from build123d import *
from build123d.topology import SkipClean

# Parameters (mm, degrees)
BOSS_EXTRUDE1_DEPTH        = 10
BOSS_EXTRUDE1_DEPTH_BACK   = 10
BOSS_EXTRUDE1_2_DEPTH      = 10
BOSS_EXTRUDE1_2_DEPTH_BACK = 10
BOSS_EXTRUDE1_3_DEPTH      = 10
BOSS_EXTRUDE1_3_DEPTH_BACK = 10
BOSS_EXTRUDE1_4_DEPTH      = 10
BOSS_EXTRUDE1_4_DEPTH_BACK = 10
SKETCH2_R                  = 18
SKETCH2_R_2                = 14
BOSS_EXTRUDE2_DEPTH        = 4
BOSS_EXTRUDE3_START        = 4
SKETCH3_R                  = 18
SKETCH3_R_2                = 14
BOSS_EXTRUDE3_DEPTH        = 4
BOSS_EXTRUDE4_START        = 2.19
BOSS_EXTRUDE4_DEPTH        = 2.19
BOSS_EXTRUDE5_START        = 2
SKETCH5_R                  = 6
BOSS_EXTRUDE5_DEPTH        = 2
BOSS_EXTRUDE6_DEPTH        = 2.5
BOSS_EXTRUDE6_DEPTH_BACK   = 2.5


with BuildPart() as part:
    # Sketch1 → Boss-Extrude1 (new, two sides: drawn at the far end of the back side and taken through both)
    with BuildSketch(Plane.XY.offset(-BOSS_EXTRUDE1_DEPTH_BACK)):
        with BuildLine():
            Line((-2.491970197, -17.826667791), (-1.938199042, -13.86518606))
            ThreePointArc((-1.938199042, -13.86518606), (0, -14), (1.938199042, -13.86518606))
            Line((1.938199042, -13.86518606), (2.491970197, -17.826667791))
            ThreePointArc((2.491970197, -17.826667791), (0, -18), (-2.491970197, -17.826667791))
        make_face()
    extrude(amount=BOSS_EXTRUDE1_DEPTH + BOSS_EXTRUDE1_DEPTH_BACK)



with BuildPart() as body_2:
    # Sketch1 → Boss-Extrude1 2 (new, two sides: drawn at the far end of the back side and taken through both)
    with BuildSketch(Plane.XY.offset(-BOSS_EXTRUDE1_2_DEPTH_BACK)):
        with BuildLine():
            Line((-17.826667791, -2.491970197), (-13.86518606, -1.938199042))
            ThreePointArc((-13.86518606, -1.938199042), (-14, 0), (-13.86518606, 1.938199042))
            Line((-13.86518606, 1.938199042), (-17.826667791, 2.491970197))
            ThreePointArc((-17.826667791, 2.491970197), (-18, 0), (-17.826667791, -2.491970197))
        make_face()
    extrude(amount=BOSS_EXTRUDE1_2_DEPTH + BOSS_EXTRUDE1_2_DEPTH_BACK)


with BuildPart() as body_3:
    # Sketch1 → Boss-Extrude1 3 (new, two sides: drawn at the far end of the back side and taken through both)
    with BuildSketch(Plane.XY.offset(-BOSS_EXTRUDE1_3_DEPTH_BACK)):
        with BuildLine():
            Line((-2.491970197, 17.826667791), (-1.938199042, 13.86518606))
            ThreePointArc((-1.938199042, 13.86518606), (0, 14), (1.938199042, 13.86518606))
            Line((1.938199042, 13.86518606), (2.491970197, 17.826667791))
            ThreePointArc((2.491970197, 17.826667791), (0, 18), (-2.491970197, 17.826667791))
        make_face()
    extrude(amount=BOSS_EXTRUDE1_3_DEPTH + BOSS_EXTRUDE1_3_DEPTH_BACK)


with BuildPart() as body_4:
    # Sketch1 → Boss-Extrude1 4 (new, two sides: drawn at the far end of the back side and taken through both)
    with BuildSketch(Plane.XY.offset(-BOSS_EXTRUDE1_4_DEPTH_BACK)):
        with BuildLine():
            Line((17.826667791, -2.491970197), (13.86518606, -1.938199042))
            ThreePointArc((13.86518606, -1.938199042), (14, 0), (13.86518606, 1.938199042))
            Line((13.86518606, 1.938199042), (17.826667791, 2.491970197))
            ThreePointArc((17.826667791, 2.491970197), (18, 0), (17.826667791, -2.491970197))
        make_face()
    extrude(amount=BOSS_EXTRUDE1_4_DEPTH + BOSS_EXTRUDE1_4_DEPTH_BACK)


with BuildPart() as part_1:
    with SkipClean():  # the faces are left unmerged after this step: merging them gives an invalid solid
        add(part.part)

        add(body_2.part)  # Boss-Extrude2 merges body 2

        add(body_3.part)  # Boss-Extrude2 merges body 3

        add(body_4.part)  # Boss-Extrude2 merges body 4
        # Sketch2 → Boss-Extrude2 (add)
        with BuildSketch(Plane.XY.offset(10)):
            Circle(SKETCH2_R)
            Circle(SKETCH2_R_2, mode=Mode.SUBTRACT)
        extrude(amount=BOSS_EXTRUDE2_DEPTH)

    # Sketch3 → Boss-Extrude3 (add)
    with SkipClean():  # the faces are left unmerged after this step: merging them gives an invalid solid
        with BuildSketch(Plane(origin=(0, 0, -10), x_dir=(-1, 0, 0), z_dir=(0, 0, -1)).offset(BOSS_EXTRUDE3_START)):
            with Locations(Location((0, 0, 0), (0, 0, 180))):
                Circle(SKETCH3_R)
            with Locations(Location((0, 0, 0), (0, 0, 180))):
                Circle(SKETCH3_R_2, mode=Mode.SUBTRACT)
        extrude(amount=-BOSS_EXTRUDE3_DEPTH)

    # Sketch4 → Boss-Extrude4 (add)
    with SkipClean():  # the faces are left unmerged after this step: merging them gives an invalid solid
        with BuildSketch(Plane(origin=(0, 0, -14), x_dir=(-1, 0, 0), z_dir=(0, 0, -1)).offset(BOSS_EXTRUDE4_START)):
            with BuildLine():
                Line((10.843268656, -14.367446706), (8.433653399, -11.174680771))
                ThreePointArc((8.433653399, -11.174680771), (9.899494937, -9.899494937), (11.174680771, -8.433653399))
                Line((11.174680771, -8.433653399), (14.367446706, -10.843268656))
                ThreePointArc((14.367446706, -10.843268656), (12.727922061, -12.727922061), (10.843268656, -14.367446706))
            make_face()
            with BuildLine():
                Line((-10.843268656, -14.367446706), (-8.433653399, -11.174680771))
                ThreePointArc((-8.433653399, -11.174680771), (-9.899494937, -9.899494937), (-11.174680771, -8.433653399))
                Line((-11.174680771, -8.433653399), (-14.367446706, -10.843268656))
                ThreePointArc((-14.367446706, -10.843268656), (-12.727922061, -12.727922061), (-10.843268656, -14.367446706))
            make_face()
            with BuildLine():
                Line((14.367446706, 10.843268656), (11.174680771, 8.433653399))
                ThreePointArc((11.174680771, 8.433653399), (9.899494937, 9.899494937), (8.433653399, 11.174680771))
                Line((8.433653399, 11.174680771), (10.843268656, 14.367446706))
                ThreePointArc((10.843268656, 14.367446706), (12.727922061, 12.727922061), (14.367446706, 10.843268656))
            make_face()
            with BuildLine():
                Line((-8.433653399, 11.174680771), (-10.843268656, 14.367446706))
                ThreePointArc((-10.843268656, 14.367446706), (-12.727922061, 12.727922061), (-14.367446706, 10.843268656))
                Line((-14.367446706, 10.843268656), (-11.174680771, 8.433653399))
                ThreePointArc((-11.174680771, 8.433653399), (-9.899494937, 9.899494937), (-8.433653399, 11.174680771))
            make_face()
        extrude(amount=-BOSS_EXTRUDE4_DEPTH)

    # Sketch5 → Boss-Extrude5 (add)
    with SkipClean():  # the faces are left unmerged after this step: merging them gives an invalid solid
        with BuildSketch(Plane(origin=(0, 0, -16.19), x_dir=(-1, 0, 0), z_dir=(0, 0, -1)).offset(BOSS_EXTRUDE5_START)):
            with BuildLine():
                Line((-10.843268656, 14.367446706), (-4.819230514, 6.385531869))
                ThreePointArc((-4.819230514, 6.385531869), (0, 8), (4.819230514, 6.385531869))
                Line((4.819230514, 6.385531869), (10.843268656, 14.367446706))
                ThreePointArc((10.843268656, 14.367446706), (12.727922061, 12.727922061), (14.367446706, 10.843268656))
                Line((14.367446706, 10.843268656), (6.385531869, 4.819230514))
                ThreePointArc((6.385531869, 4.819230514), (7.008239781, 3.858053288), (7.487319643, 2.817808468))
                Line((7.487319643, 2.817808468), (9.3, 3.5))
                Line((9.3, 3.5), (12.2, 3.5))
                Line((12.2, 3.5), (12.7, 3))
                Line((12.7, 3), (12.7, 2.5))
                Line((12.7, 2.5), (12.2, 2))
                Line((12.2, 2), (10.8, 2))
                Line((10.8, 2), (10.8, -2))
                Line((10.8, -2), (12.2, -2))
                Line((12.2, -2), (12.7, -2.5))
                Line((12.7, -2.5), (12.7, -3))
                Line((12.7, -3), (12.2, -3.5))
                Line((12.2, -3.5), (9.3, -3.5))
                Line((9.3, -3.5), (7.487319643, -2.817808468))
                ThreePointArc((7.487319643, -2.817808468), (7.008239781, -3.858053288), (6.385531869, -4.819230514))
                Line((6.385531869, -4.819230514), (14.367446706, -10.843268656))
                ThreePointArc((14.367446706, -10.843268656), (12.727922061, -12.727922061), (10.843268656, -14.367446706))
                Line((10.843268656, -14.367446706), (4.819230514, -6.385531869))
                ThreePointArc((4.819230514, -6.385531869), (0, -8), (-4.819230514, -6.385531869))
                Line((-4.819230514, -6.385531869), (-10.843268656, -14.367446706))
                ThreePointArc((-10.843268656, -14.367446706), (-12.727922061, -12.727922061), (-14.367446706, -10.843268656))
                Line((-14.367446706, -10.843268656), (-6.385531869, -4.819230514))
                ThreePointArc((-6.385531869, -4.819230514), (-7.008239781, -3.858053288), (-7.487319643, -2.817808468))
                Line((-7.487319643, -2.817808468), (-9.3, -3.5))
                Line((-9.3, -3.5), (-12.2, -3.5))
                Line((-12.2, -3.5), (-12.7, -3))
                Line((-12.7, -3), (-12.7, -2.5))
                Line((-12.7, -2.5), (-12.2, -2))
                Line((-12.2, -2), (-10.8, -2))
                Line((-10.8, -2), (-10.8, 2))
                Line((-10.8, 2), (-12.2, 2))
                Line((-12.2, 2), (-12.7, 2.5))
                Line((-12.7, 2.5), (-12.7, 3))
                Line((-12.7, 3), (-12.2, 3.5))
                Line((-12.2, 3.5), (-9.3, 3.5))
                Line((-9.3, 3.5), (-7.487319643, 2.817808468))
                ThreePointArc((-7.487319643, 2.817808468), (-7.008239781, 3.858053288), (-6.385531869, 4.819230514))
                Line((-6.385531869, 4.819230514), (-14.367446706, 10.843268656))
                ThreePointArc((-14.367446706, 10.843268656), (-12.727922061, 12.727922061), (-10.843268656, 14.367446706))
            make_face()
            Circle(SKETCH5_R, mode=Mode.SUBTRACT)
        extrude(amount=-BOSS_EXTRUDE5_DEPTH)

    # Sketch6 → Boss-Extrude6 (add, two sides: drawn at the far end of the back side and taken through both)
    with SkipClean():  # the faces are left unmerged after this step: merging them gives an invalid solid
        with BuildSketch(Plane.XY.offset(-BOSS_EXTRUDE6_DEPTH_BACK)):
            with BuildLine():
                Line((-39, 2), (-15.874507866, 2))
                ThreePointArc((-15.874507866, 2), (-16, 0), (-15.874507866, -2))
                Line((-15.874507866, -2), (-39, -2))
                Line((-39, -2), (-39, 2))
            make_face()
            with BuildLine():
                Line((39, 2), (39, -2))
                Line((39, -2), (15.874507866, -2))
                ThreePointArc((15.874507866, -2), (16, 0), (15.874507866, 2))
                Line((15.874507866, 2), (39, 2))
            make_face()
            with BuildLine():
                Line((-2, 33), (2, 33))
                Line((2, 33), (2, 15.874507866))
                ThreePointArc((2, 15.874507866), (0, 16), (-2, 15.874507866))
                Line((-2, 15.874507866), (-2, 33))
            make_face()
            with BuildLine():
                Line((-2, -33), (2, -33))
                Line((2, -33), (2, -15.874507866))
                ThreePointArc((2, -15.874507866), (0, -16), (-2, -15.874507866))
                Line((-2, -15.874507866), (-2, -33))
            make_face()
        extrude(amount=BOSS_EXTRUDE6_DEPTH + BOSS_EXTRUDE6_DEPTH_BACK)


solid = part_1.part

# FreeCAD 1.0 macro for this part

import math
import FreeCAD as App
import Part
import Sketcher
from FreeCAD import Vector
Q = App.Units.Quantity

doc = App.newDocument("Part")
params = doc.addObject("Spreadsheet::Sheet", "Params")
for row, (alias, value) in enumerate([
    ("sketch1_radius", "18 mm"),
    ("sketch1_radius2", "14 mm"),
    ("pad1_length", "10 mm"),
    ("pad1_length2", "10 mm"),
    ("sketch2_radius", "14 mm"),
    ("sketch2_radius2", "18 mm"),
    ("pad2_length", "10 mm"),
    ("pad2_length2", "10 mm"),
    ("sketch3_radius", "14 mm"),
    ("sketch3_radius2", "18 mm"),
    ("pad3_length", "10 mm"),
    ("pad3_length2", "10 mm"),
    ("sketch4_radius", "18 mm"),
    ("sketch4_radius2", "14 mm"),
    ("pad4_length", "10 mm"),
    ("pad4_length2", "10 mm"),
    ("sketch5_diameter", "36 mm"),
    ("sketch5_diameter2", "28 mm"),
    ("pad5_length", "4 mm"),
    ("sketch6_diameter", "36 mm"),
    ("sketch6_diameter2", "28 mm"),
    ("pad6_length", "4 mm"),
    ("sketch7_radius", "18 mm"),
    ("sketch7_radius2", "14 mm"),
    ("pad7_length", "2.19 mm"),
    ("sketch8_diameter", "12 mm"),
    ("sketch8_radius", "18 mm"),
    ("sketch8_radius2", "8 mm"),
    ("sketch8_height", "4 mm"),
    ("sketch8_width", "2.9 mm"),
    ("pad8_length", "2 mm"),
    ("sketch9_radius", "16 mm"),
    ("sketch9_width", "4 mm"),
    ("pad9_length", "2.5 mm"),
    ("pad9_length2", "2.5 mm"),
], start=1):
    params.set(f"A{row}", alias)
    params.set(f"B{row}", "=" + value)
    params.setAlias(f"B{row}", alias)

body = doc.addObject("PartDesign::Body", "Body")

# Sketch on XY plane
sketch1 = body.newObject("Sketcher::SketchObject", "Sketch")
sketch1.AttachmentSupport = (doc.getObject("XY_Plane"), [""])
sketch1.MapMode = "FlatFace"
sketch1.addGeometry(Part.LineSegment(Vector(-1.9, -13.9, 0), Vector(-2.5, -17.8, 0)), False)
sketch1.addGeometry(Part.ArcOfCircle(Part.Circle(Vector(0, 0, 0), Vector(0, 0, 1), 18), math.radians(-97.96), math.radians(-82.04)), False)
sketch1.addGeometry(Part.LineSegment(Vector(2.5, -17.8, 0), Vector(1.9, -13.9, 0)), False)
sketch1.addGeometry(Part.ArcOfCircle(Part.Circle(Vector(0, 0, 0), Vector(0, 0, 1), 14), math.radians(-97.96), math.radians(-82.04)), False)
sketch1.addConstraint(Sketcher.Constraint("Coincident", 0, 2, 1, 1))
sketch1.addConstraint(Sketcher.Constraint("Coincident", 1, 2, 2, 1))
sketch1.addConstraint(Sketcher.Constraint("Coincident", 2, 2, 3, 2))
sketch1.addConstraint(Sketcher.Constraint("Coincident", 3, 1, 0, 1))
sketch1.addConstraint(Sketcher.Constraint("Coincident", 1, 3, -1, 1))
sketch1.addConstraint(Sketcher.Constraint("Coincident", 3, 3, -1, 1))
sketch1.addConstraint(Sketcher.Constraint("Horizontal", 0, 2, 1, 2))
sketch1.addConstraint(Sketcher.Constraint("Horizontal", 2, 2, 3, 1))
sketch1.addConstraint(Sketcher.Constraint("Radius", 1, Q("18 mm")))
sketch1.addConstraint(Sketcher.Constraint("Radius", 3, Q("14 mm")))
sketch1.addConstraint(Sketcher.Constraint("DistanceX", -1, 1, 2, 2, Q("1.938199 mm")))
sketch1.addConstraint(Sketcher.Constraint("DistanceX", 0, 2, -1, 1, Q("2.49197 mm")))
sketch1.setExpression("Constraints[8]", "Params.sketch1_radius")
sketch1.setExpression("Constraints[9]", "Params.sketch1_radius2")
pad1 = body.newObject("PartDesign::Pad", "Pad")
pad1.Profile = sketch1
pad1.Type = "TwoLengths"
pad1.setExpression("Length", "Params.pad1_length")
pad1.setExpression("Length2", "Params.pad1_length2")
body2 = doc.addObject("PartDesign::Body", "Body001")

# Sketch on XY plane
sketch2 = body2.newObject("Sketcher::SketchObject", "Sketch001")
sketch2.AttachmentSupport = (doc.getObject("XY_Plane001"), [""])
sketch2.MapMode = "FlatFace"
sketch2.addGeometry(Part.LineSegment(Vector(-17.8, -2.5, 0), Vector(-13.9, -1.9, 0)), False)
sketch2.addGeometry(Part.ArcOfCircle(Part.Circle(Vector(0, 0, 0), Vector(0, 0, 1), 14), math.radians(172.04), math.radians(187.96)), False)
sketch2.addGeometry(Part.LineSegment(Vector(-13.9, 1.9, 0), Vector(-17.8, 2.5, 0)), False)
sketch2.addGeometry(Part.ArcOfCircle(Part.Circle(Vector(0, 0, 0), Vector(0, 0, 1), 18), math.radians(172.04), math.radians(187.96)), False)
sketch2.addConstraint(Sketcher.Constraint("Coincident", 0, 2, 1, 2))
sketch2.addConstraint(Sketcher.Constraint("Coincident", 1, 1, 2, 1))
sketch2.addConstraint(Sketcher.Constraint("Coincident", 2, 2, 3, 1))
sketch2.addConstraint(Sketcher.Constraint("Coincident", 3, 2, 0, 1))
sketch2.addConstraint(Sketcher.Constraint("Coincident", 1, 3, -1, 1))
sketch2.addConstraint(Sketcher.Constraint("Coincident", 3, 3, -1, 1))
sketch2.addConstraint(Sketcher.Constraint("Vertical", 0, 2, 1, 1))
sketch2.addConstraint(Sketcher.Constraint("Vertical", 2, 2, 3, 2))
sketch2.addConstraint(Sketcher.Constraint("Radius", 1, Q("14 mm")))
sketch2.addConstraint(Sketcher.Constraint("Radius", 3, Q("18 mm")))
sketch2.addConstraint(Sketcher.Constraint("DistanceY", 0, 2, -1, 1, Q("1.938199 mm")))
sketch2.addConstraint(Sketcher.Constraint("DistanceY", -1, 1, 2, 2, Q("2.49197 mm")))
sketch2.setExpression("Constraints[8]", "Params.sketch2_radius")
sketch2.setExpression("Constraints[9]", "Params.sketch2_radius2")
pad2 = body2.newObject("PartDesign::Pad", "Pad001")
pad2.Profile = sketch2
pad2.Type = "TwoLengths"
pad2.setExpression("Length", "Params.pad2_length")
pad2.setExpression("Length2", "Params.pad2_length2")
body3 = doc.addObject("PartDesign::Body", "Body002")

# Sketch on XY plane
sketch3 = body3.newObject("Sketcher::SketchObject", "Sketch002")
sketch3.AttachmentSupport = (doc.getObject("XY_Plane002"), [""])
sketch3.MapMode = "FlatFace"
sketch3.addGeometry(Part.LineSegment(Vector(-2.5, 17.8, 0), Vector(-1.9, 13.9, 0)), False)
sketch3.addGeometry(Part.ArcOfCircle(Part.Circle(Vector(0, 0, 0), Vector(0, 0, 1), 14), math.radians(82.04), math.radians(97.96)), False)
sketch3.addGeometry(Part.LineSegment(Vector(1.9, 13.9, 0), Vector(2.5, 17.8, 0)), False)
sketch3.addGeometry(Part.ArcOfCircle(Part.Circle(Vector(0, 0, 0), Vector(0, 0, 1), 18), math.radians(82.04), math.radians(97.96)), False)
sketch3.addConstraint(Sketcher.Constraint("Coincident", 0, 2, 1, 2))
sketch3.addConstraint(Sketcher.Constraint("Coincident", 1, 1, 2, 1))
sketch3.addConstraint(Sketcher.Constraint("Coincident", 2, 2, 3, 1))
sketch3.addConstraint(Sketcher.Constraint("Coincident", 3, 2, 0, 1))
sketch3.addConstraint(Sketcher.Constraint("Coincident", 1, 3, -1, 1))
sketch3.addConstraint(Sketcher.Constraint("Coincident", 3, 3, -1, 1))
sketch3.addConstraint(Sketcher.Constraint("Horizontal", 0, 2, 1, 1))
sketch3.addConstraint(Sketcher.Constraint("Horizontal", 2, 2, 3, 2))
sketch3.addConstraint(Sketcher.Constraint("Radius", 1, Q("14 mm")))
sketch3.addConstraint(Sketcher.Constraint("Radius", 3, Q("18 mm")))
sketch3.addConstraint(Sketcher.Constraint("DistanceX", 0, 2, -1, 1, Q("1.938199 mm")))
sketch3.addConstraint(Sketcher.Constraint("DistanceX", -1, 1, 2, 2, Q("2.49197 mm")))
sketch3.setExpression("Constraints[8]", "Params.sketch3_radius")
sketch3.setExpression("Constraints[9]", "Params.sketch3_radius2")
pad3 = body3.newObject("PartDesign::Pad", "Pad002")
pad3.Profile = sketch3
pad3.Type = "TwoLengths"
pad3.setExpression("Length", "Params.pad3_length")
pad3.setExpression("Length2", "Params.pad3_length2")
body4 = doc.addObject("PartDesign::Body", "Body003")

# Sketch on XY plane
sketch4 = body4.newObject("Sketcher::SketchObject", "Sketch003")
sketch4.AttachmentSupport = (doc.getObject("XY_Plane003"), [""])
sketch4.MapMode = "FlatFace"
sketch4.addGeometry(Part.LineSegment(Vector(13.9, -1.9, 0), Vector(17.8, -2.5, 0)), False)
sketch4.addGeometry(Part.ArcOfCircle(Part.Circle(Vector(0, 0, 0), Vector(0, 0, 1), 18), math.radians(-7.96), math.radians(7.96)), False)
sketch4.addGeometry(Part.LineSegment(Vector(17.8, 2.5, 0), Vector(13.9, 1.9, 0)), False)
sketch4.addGeometry(Part.ArcOfCircle(Part.Circle(Vector(0, 0, 0), Vector(0, 0, 1), 14), math.radians(-7.96), math.radians(7.96)), False)
sketch4.addConstraint(Sketcher.Constraint("Coincident", 0, 2, 1, 1))
sketch4.addConstraint(Sketcher.Constraint("Coincident", 1, 2, 2, 1))
sketch4.addConstraint(Sketcher.Constraint("Coincident", 2, 2, 3, 2))
sketch4.addConstraint(Sketcher.Constraint("Coincident", 3, 1, 0, 1))
sketch4.addConstraint(Sketcher.Constraint("Coincident", 1, 3, -1, 1))
sketch4.addConstraint(Sketcher.Constraint("Coincident", 3, 3, -1, 1))
sketch4.addConstraint(Sketcher.Constraint("Vertical", 0, 2, 1, 2))
sketch4.addConstraint(Sketcher.Constraint("Vertical", 2, 2, 3, 1))
sketch4.addConstraint(Sketcher.Constraint("Radius", 1, Q("18 mm")))
sketch4.addConstraint(Sketcher.Constraint("Radius", 3, Q("14 mm")))
sketch4.addConstraint(Sketcher.Constraint("DistanceY", -1, 1, 2, 2, Q("1.938199 mm")))
sketch4.addConstraint(Sketcher.Constraint("DistanceY", 0, 2, -1, 1, Q("2.49197 mm")))
sketch4.setExpression("Constraints[8]", "Params.sketch4_radius")
sketch4.setExpression("Constraints[9]", "Params.sketch4_radius2")
pad4 = body4.newObject("PartDesign::Pad", "Pad003")
pad4.Profile = sketch4
pad4.Type = "TwoLengths"
pad4.setExpression("Length", "Params.pad4_length")
pad4.setExpression("Length2", "Params.pad4_length2")
body.AllowCompound = True
doc.recompute()

boolean = body.newObject("PartDesign::Boolean", "Boolean")
boolean.Type = "Fuse"
boolean.addObjects([body2])
doc.recompute()

boolean2 = body.newObject("PartDesign::Boolean", "Boolean001")
boolean2.Type = "Fuse"
boolean2.addObjects([body3])
doc.recompute()

boolean3 = body.newObject("PartDesign::Boolean", "Boolean002")
boolean3.Type = "Fuse"
boolean3.addObjects([body4])

# Sketch on XY plane
sketch5 = body.newObject("Sketcher::SketchObject", "Sketch004")
sketch5.AttachmentSupport = (doc.getObject("XY_Plane"), [""])
sketch5.MapMode = "FlatFace"
sketch5.AttachmentOffset = App.Placement(Vector(0, 0, 10), App.Rotation())
sketch5.addGeometry(Part.Circle(Vector(0, 0, 0), Vector(0, 0, 1), 18), False)
sketch5.addGeometry(Part.Circle(Vector(0, 0, 0), Vector(0, 0, 1), 14), False)
sketch5.addConstraint(Sketcher.Constraint("Coincident", 0, 3, -1, 1))
sketch5.addConstraint(Sketcher.Constraint("Coincident", 1, 3, -1, 1))
sketch5.addConstraint(Sketcher.Constraint("Diameter", 0, Q("36 mm")))
sketch5.addConstraint(Sketcher.Constraint("Diameter", 1, Q("28 mm")))
sketch5.setExpression("Constraints[2]", "Params.sketch5_diameter")
sketch5.setExpression("Constraints[3]", "Params.sketch5_diameter2")
pad5 = body.newObject("PartDesign::Pad", "Pad004")
pad5.Profile = sketch5
pad5.setExpression("Length", "Params.pad5_length")

# Sketch on XY plane
sketch6 = body.newObject("Sketcher::SketchObject", "Sketch005")
sketch6.AttachmentSupport = (doc.getObject("XY_Plane"), [""])
sketch6.MapMode = "FlatFace"
sketch6.AttachmentOffset = App.Placement(Vector(0, 0, -14), App.Rotation())
sketch6.addGeometry(Part.Circle(Vector(0, 0, 0), Vector(0, 0, 1), 18), False)
sketch6.addGeometry(Part.Circle(Vector(0, 0, 0), Vector(0, 0, 1), 14), False)
sketch6.addConstraint(Sketcher.Constraint("Coincident", 0, 3, -1, 1))
sketch6.addConstraint(Sketcher.Constraint("Coincident", 1, 3, -1, 1))
sketch6.addConstraint(Sketcher.Constraint("Diameter", 0, Q("36 mm")))
sketch6.addConstraint(Sketcher.Constraint("Diameter", 1, Q("28 mm")))
sketch6.setExpression("Constraints[2]", "Params.sketch6_diameter")
sketch6.setExpression("Constraints[3]", "Params.sketch6_diameter2")
pad6 = body.newObject("PartDesign::Pad", "Pad005")
pad6.Profile = sketch6
pad6.setExpression("Length", "Params.pad6_length")

# Sketch on XY plane
sketch7 = body.newObject("Sketcher::SketchObject", "Sketch006")
sketch7.AttachmentSupport = (doc.getObject("XY_Plane"), [""])
sketch7.MapMode = "FlatFace"
sketch7.AttachmentOffset = App.Placement(Vector(0, 0, -16.19), App.Rotation())
sketch7.addGeometry(Part.LineSegment(Vector(-8.4, -11.2, 0), Vector(-10.8, -14.4, 0)), False)
sketch7.addGeometry(Part.ArcOfCircle(Part.Circle(Vector(0, 0, 0), Vector(0, 0, 1), 18), math.radians(-142.96), math.radians(-127.04)), False)
sketch7.addGeometry(Part.LineSegment(Vector(-14.4, -10.8, 0), Vector(-11.2, -8.4, 0)), False)
sketch7.addGeometry(Part.ArcOfCircle(Part.Circle(Vector(0, 0, 0), Vector(0, 0, 1), 14), math.radians(-142.96), math.radians(-127.04)), False)
sketch7.addGeometry(Part.LineSegment(Vector(10.8, -14.4, 0), Vector(8.4, -11.2, 0)), False)
sketch7.addGeometry(Part.ArcOfCircle(Part.Circle(Vector(0, 0, 0), Vector(0, 0, 1), 14), math.radians(-52.96), math.radians(-37.04)), False)
sketch7.addGeometry(Part.LineSegment(Vector(11.2, -8.4, 0), Vector(14.4, -10.8, 0)), False)
sketch7.addGeometry(Part.ArcOfCircle(Part.Circle(Vector(0, 0, 0), Vector(0, 0, 1), 18), math.radians(-52.96), math.radians(-37.04)), False)
sketch7.addGeometry(Part.LineSegment(Vector(-11.2, 8.4, 0), Vector(-14.4, 10.8, 0)), False)
sketch7.addGeometry(Part.ArcOfCircle(Part.Circle(Vector(0, 0, 0), Vector(0, 0, 1), 18), math.radians(127.04), math.radians(142.96)), False)
sketch7.addGeometry(Part.LineSegment(Vector(-10.8, 14.4, 0), Vector(-8.4, 11.2, 0)), False)
sketch7.addGeometry(Part.ArcOfCircle(Part.Circle(Vector(0, 0, 0), Vector(0, 0, 1), 14), math.radians(127.04), math.radians(142.96)), False)
sketch7.addGeometry(Part.LineSegment(Vector(8.4, 11.2, 0), Vector(10.8, 14.4, 0)), False)
sketch7.addGeometry(Part.ArcOfCircle(Part.Circle(Vector(0, 0, 0), Vector(0, 0, 1), 18), math.radians(37.04), math.radians(52.96)), False)
sketch7.addGeometry(Part.LineSegment(Vector(14.4, 10.8, 0), Vector(11.2, 8.4, 0)), False)
sketch7.addGeometry(Part.ArcOfCircle(Part.Circle(Vector(0, 0, 0), Vector(0, 0, 1), 14), math.radians(37.04), math.radians(52.96)), False)
sketch7.addConstraint(Sketcher.Constraint("Coincident", 0, 2, 1, 2))
sketch7.addConstraint(Sketcher.Constraint("Coincident", 1, 1, 2, 1))
sketch7.addConstraint(Sketcher.Constraint("Coincident", 2, 2, 3, 1))
sketch7.addConstraint(Sketcher.Constraint("Coincident", 3, 2, 0, 1))
sketch7.addConstraint(Sketcher.Constraint("Coincident", 4, 2, 5, 1))
sketch7.addConstraint(Sketcher.Constraint("Coincident", 5, 2, 6, 1))
sketch7.addConstraint(Sketcher.Constraint("Coincident", 6, 2, 7, 2))
sketch7.addConstraint(Sketcher.Constraint("Coincident", 7, 1, 4, 1))
sketch7.addConstraint(Sketcher.Constraint("Coincident", 8, 2, 9, 2))
sketch7.addConstraint(Sketcher.Constraint("Coincident", 9, 1, 10, 1))
sketch7.addConstraint(Sketcher.Constraint("Coincident", 10, 2, 11, 1))
sketch7.addConstraint(Sketcher.Constraint("Coincident", 11, 2, 8, 1))
sketch7.addConstraint(Sketcher.Constraint("Coincident", 12, 2, 13, 2))
sketch7.addConstraint(Sketcher.Constraint("Coincident", 13, 1, 14, 1))
sketch7.addConstraint(Sketcher.Constraint("Coincident", 14, 2, 15, 1))
sketch7.addConstraint(Sketcher.Constraint("Coincident", 15, 2, 12, 1))
sketch7.addConstraint(Sketcher.Constraint("Coincident", 1, 3, -1, 1))
sketch7.addConstraint(Sketcher.Constraint("Coincident", 3, 3, -1, 1))
sketch7.addConstraint(Sketcher.Constraint("Coincident", 5, 3, -1, 1))
sketch7.addConstraint(Sketcher.Constraint("Coincident", 7, 3, -1, 1))
sketch7.addConstraint(Sketcher.Constraint("Coincident", 9, 3, -1, 1))
sketch7.addConstraint(Sketcher.Constraint("Coincident", 11, 3, -1, 1))
sketch7.addConstraint(Sketcher.Constraint("Coincident", 13, 3, -1, 1))
sketch7.addConstraint(Sketcher.Constraint("Coincident", 15, 3, -1, 1))
sketch7.addConstraint(Sketcher.Constraint("Equal", 3, 5))
sketch7.addConstraint(Sketcher.Constraint("Equal", 1, 7))
sketch7.addConstraint(Sketcher.Constraint("Equal", 7, 9))
sketch7.addConstraint(Sketcher.Constraint("Equal", 5, 11))
sketch7.addConstraint(Sketcher.Constraint("Equal", 9, 13))
sketch7.addConstraint(Sketcher.Constraint("Equal", 11, 15))
sketch7.addConstraint(Sketcher.Constraint("Perpendicular", 2, 4))
sketch7.addConstraint(Sketcher.Constraint("Perpendicular", 0, 6))
sketch7.addConstraint(Sketcher.Constraint("Parallel", 6, 8))
sketch7.addConstraint(Sketcher.Constraint("Parallel", 4, 10))
sketch7.addConstraint(Sketcher.Constraint("Perpendicular", 8, 12))
sketch7.addConstraint(Sketcher.Constraint("Perpendicular", 10, 14))
sketch7.addConstraint(Sketcher.Constraint("Horizontal", 3, 2, 4, 2))
sketch7.addConstraint(Sketcher.Constraint("Horizontal", 2, 2, 5, 2))
sketch7.addConstraint(Sketcher.Constraint("Horizontal", 1, 1, 6, 2))
sketch7.addConstraint(Sketcher.Constraint("Horizontal", 9, 1, 12, 2))
sketch7.addConstraint(Sketcher.Constraint("Horizontal", 8, 2, 13, 1))
sketch7.addConstraint(Sketcher.Constraint("Vertical", 1, 1, 8, 2))
sketch7.addConstraint(Sketcher.Constraint("Vertical", 0, 2, 9, 1))
sketch7.addConstraint(Sketcher.Constraint("Radius", 1, Q("18 mm")))
sketch7.addConstraint(Sketcher.Constraint("Radius", 3, Q("14 mm")))
sketch7.addConstraint(Sketcher.Constraint("DistanceX", 0, 2, -1, 1, Q("10.843269 mm")))
sketch7.addConstraint(Sketcher.Constraint("DistanceY", 1, 1, -1, 1, Q("10.843269 mm")))
sketch7.addConstraint(Sketcher.Constraint("DistanceX", 2, 2, -1, 1, Q("11.174681 mm")))
sketch7.setExpression("Constraints[43]", "Params.sketch7_radius")
sketch7.setExpression("Constraints[44]", "Params.sketch7_radius2")
pad7 = body.newObject("PartDesign::Pad", "Pad006")
pad7.Profile = sketch7
pad7.setExpression("Length", "Params.pad7_length")

# Sketch on XY plane
sketch8 = body.newObject("Sketcher::SketchObject", "Sketch007")
sketch8.AttachmentSupport = (doc.getObject("XY_Plane"), [""])
sketch8.MapMode = "FlatFace"
sketch8.AttachmentOffset = App.Placement(Vector(0, 0, -18.19), App.Rotation())
sketch8.addGeometry(Part.LineSegment(Vector(4.8, 6.4, 0), Vector(10.8, 14.4, 0)), False)
sketch8.addGeometry(Part.ArcOfCircle(Part.Circle(Vector(0, 0, 0), Vector(0, 0, 1), 18), math.radians(37.04), math.radians(52.96)), False)
sketch8.addGeometry(Part.LineSegment(Vector(14.4, 10.8, 0), Vector(6.4, 4.8, 0)), False)
sketch8.addGeometry(Part.ArcOfCircle(Part.Circle(Vector(0, 0, 0), Vector(0, 0, 1), 8), math.radians(20.62), math.radians(37.04)), False)
sketch8.addGeometry(Part.LineSegment(Vector(7.5, 2.8, 0), Vector(9.3, 3.5, 0)), False)
sketch8.addGeometry(Part.LineSegment(Vector(9.3, 3.5, 0), Vector(12.2, 3.5, 0)), False)
sketch8.addGeometry(Part.LineSegment(Vector(12.2, 3.5, 0), Vector(12.7, 3, 0)), False)
sketch8.addGeometry(Part.LineSegment(Vector(12.7, 3, 0), Vector(12.7, 2.5, 0)), False)
sketch8.addGeometry(Part.LineSegment(Vector(12.7, 2.5, 0), Vector(12.2, 2, 0)), False)
sketch8.addGeometry(Part.LineSegment(Vector(12.2, 2, 0), Vector(10.8, 2, 0)), False)
sketch8.addGeometry(Part.LineSegment(Vector(10.8, 2, 0), Vector(10.8, -2, 0)), False)
sketch8.addGeometry(Part.LineSegment(Vector(10.8, -2, 0), Vector(12.2, -2, 0)), False)
sketch8.addGeometry(Part.LineSegment(Vector(12.2, -2, 0), Vector(12.7, -2.5, 0)), False)
sketch8.addGeometry(Part.LineSegment(Vector(12.7, -2.5, 0), Vector(12.7, -3, 0)), False)
sketch8.addGeometry(Part.LineSegment(Vector(12.7, -3, 0), Vector(12.2, -3.5, 0)), False)
sketch8.addGeometry(Part.LineSegment(Vector(12.2, -3.5, 0), Vector(9.3, -3.5, 0)), False)
sketch8.addGeometry(Part.LineSegment(Vector(9.3, -3.5, 0), Vector(7.5, -2.8, 0)), False)
sketch8.addGeometry(Part.ArcOfCircle(Part.Circle(Vector(0, 0, 0), Vector(0, 0, 1), 8), math.radians(-37.04), math.radians(-20.62)), False)
sketch8.addGeometry(Part.LineSegment(Vector(6.4, -4.8, 0), Vector(14.4, -10.8, 0)), False)
sketch8.addGeometry(Part.ArcOfCircle(Part.Circle(Vector(0, 0, 0), Vector(0, 0, 1), 18), math.radians(-52.96), math.radians(-37.04)), False)
sketch8.addGeometry(Part.LineSegment(Vector(10.8, -14.4, 0), Vector(4.8, -6.4, 0)), False)
sketch8.addGeometry(Part.ArcOfCircle(Part.Circle(Vector(0, 0, 0), Vector(0, 0, 1), 8), math.radians(-127), math.radians(-53)), False)
sketch8.addGeometry(Part.LineSegment(Vector(-4.8, -6.4, 0), Vector(-10.8, -14.4, 0)), False)
sketch8.addGeometry(Part.ArcOfCircle(Part.Circle(Vector(0, 0, 0), Vector(0, 0, 1), 18), math.radians(-142.96), math.radians(-127.04)), False)
sketch8.addGeometry(Part.LineSegment(Vector(-14.4, -10.8, 0), Vector(-6.4, -4.8, 0)), False)
sketch8.addGeometry(Part.ArcOfCircle(Part.Circle(Vector(0, 0, 0), Vector(0, 0, 1), 8), math.radians(-159.38), math.radians(-142.96)), False)
sketch8.addGeometry(Part.LineSegment(Vector(-7.5, -2.8, 0), Vector(-9.3, -3.5, 0)), False)
sketch8.addGeometry(Part.LineSegment(Vector(-9.3, -3.5, 0), Vector(-12.2, -3.5, 0)), False)
sketch8.addGeometry(Part.LineSegment(Vector(-12.2, -3.5, 0), Vector(-12.7, -3, 0)), False)
sketch8.addGeometry(Part.LineSegment(Vector(-12.7, -3, 0), Vector(-12.7, -2.5, 0)), False)
sketch8.addGeometry(Part.LineSegment(Vector(-12.7, -2.5, 0), Vector(-12.2, -2, 0)), False)
sketch8.addGeometry(Part.LineSegment(Vector(-12.2, -2, 0), Vector(-10.8, -2, 0)), False)
sketch8.addGeometry(Part.LineSegment(Vector(-10.8, -2, 0), Vector(-10.8, 2, 0)), False)
sketch8.addGeometry(Part.LineSegment(Vector(-10.8, 2, 0), Vector(-12.2, 2, 0)), False)
sketch8.addGeometry(Part.LineSegment(Vector(-12.2, 2, 0), Vector(-12.7, 2.5, 0)), False)
sketch8.addGeometry(Part.LineSegment(Vector(-12.7, 2.5, 0), Vector(-12.7, 3, 0)), False)
sketch8.addGeometry(Part.LineSegment(Vector(-12.7, 3, 0), Vector(-12.2, 3.5, 0)), False)
sketch8.addGeometry(Part.LineSegment(Vector(-12.2, 3.5, 0), Vector(-9.3, 3.5, 0)), False)
sketch8.addGeometry(Part.LineSegment(Vector(-9.3, 3.5, 0), Vector(-7.5, 2.8, 0)), False)
sketch8.addGeometry(Part.ArcOfCircle(Part.Circle(Vector(0, 0, 0), Vector(0, 0, 1), 8), math.radians(142.96), math.radians(159.38)), False)
sketch8.addGeometry(Part.LineSegment(Vector(-6.4, 4.8, 0), Vector(-14.4, 10.8, 0)), False)
sketch8.addGeometry(Part.ArcOfCircle(Part.Circle(Vector(0, 0, 0), Vector(0, 0, 1), 18), math.radians(127.04), math.radians(142.96)), False)
sketch8.addGeometry(Part.LineSegment(Vector(-10.8, 14.4, 0), Vector(-4.8, 6.4, 0)), False)
sketch8.addGeometry(Part.ArcOfCircle(Part.Circle(Vector(0, 0, 0), Vector(0, 0, 1), 8), math.radians(53), math.radians(127)), False)
sketch8.addGeometry(Part.Circle(Vector(0, 0, 0), Vector(0, 0, 1), 6), False)
sketch8.addConstraint(Sketcher.Constraint("Coincident", 0, 2, 1, 2))
sketch8.addConstraint(Sketcher.Constraint("Coincident", 1, 1, 2, 1))
sketch8.addConstraint(Sketcher.Constraint("Coincident", 2, 2, 3, 2))
sketch8.addConstraint(Sketcher.Constraint("Coincident", 3, 1, 4, 1))
sketch8.addConstraint(Sketcher.Constraint("Coincident", 4, 2, 5, 1))
sketch8.addConstraint(Sketcher.Constraint("Coincident", 5, 2, 6, 1))
sketch8.addConstraint(Sketcher.Constraint("Coincident", 6, 2, 7, 1))
sketch8.addConstraint(Sketcher.Constraint("Coincident", 7, 2, 8, 1))
sketch8.addConstraint(Sketcher.Constraint("Coincident", 8, 2, 9, 1))
sketch8.addConstraint(Sketcher.Constraint("Coincident", 9, 2, 10, 1))
sketch8.addConstraint(Sketcher.Constraint("Coincident", 10, 2, 11, 1))
sketch8.addConstraint(Sketcher.Constraint("Coincident", 11, 2, 12, 1))
sketch8.addConstraint(Sketcher.Constraint("Coincident", 12, 2, 13, 1))
sketch8.addConstraint(Sketcher.Constraint("Coincident", 13, 2, 14, 1))
sketch8.addConstraint(Sketcher.Constraint("Coincident", 14, 2, 15, 1))
sketch8.addConstraint(Sketcher.Constraint("Coincident", 15, 2, 16, 1))
sketch8.addConstraint(Sketcher.Constraint("Coincident", 16, 2, 17, 2))
sketch8.addConstraint(Sketcher.Constraint("Coincident", 17, 1, 18, 1))
sketch8.addConstraint(Sketcher.Constraint("Coincident", 18, 2, 19, 2))
sketch8.addConstraint(Sketcher.Constraint("Coincident", 19, 1, 20, 1))
sketch8.addConstraint(Sketcher.Constraint("Coincident", 20, 2, 21, 2))
sketch8.addConstraint(Sketcher.Constraint("Coincident", 21, 1, 22, 1))
sketch8.addConstraint(Sketcher.Constraint("Coincident", 22, 2, 23, 2))
sketch8.addConstraint(Sketcher.Constraint("Coincident", 23, 1, 24, 1))
sketch8.addConstraint(Sketcher.Constraint("Coincident", 24, 2, 25, 2))
sketch8.addConstraint(Sketcher.Constraint("Coincident", 25, 1, 26, 1))
sketch8.addConstraint(Sketcher.Constraint("Coincident", 26, 2, 27, 1))
sketch8.addConstraint(Sketcher.Constraint("Coincident", 27, 2, 28, 1))
sketch8.addConstraint(Sketcher.Constraint("Coincident", 28, 2, 29, 1))
sketch8.addConstraint(Sketcher.Constraint("Coincident", 29, 2, 30, 1))
sketch8.addConstraint(Sketcher.Constraint("Coincident", 30, 2, 31, 1))
sketch8.addConstraint(Sketcher.Constraint("Coincident", 31, 2, 32, 1))
sketch8.addConstraint(Sketcher.Constraint("Coincident", 32, 2, 33, 1))
sketch8.addConstraint(Sketcher.Constraint("Coincident", 33, 2, 34, 1))
sketch8.addConstraint(Sketcher.Constraint("Coincident", 34, 2, 35, 1))
sketch8.addConstraint(Sketcher.Constraint("Coincident", 35, 2, 36, 1))
sketch8.addConstraint(Sketcher.Constraint("Coincident", 36, 2, 37, 1))
sketch8.addConstraint(Sketcher.Constraint("Coincident", 37, 2, 38, 1))
sketch8.addConstraint(Sketcher.Constraint("Coincident", 38, 2, 39, 2))
sketch8.addConstraint(Sketcher.Constraint("Coincident", 39, 1, 40, 1))
sketch8.addConstraint(Sketcher.Constraint("Coincident", 40, 2, 41, 2))
sketch8.addConstraint(Sketcher.Constraint("Coincident", 41, 1, 42, 1))
sketch8.addConstraint(Sketcher.Constraint("Coincident", 42, 2, 43, 2))
sketch8.addConstraint(Sketcher.Constraint("Coincident", 43, 1, 0, 1))
sketch8.addConstraint(Sketcher.Constraint("Horizontal", 5))
sketch8.addConstraint(Sketcher.Constraint("Vertical", 7))
sketch8.addConstraint(Sketcher.Constraint("Horizontal", 9))
sketch8.addConstraint(Sketcher.Constraint("Vertical", 10))
sketch8.addConstraint(Sketcher.Constraint("Horizontal", 11))
sketch8.addConstraint(Sketcher.Constraint("Vertical", 13))
sketch8.addConstraint(Sketcher.Constraint("Horizontal", 15))
sketch8.addConstraint(Sketcher.Constraint("Horizontal", 27))
sketch8.addConstraint(Sketcher.Constraint("Vertical", 29))
sketch8.addConstraint(Sketcher.Constraint("Horizontal", 31))
sketch8.addConstraint(Sketcher.Constraint("Vertical", 32))
sketch8.addConstraint(Sketcher.Constraint("Horizontal", 33))
sketch8.addConstraint(Sketcher.Constraint("Vertical", 35))
sketch8.addConstraint(Sketcher.Constraint("Horizontal", 37))
sketch8.addConstraint(Sketcher.Constraint("Coincident", 1, 3, -1, 1))
sketch8.addConstraint(Sketcher.Constraint("Coincident", 3, 3, -1, 1))
sketch8.addConstraint(Sketcher.Constraint("Coincident", 17, 3, -1, 1))
sketch8.addConstraint(Sketcher.Constraint("Coincident", 19, 3, -1, 1))
sketch8.addConstraint(Sketcher.Constraint("Coincident", 21, 3, -1, 1))
sketch8.addConstraint(Sketcher.Constraint("Coincident", 23, 3, -1, 1))
sketch8.addConstraint(Sketcher.Constraint("Coincident", 25, 3, -1, 1))
sketch8.addConstraint(Sketcher.Constraint("Coincident", 39, 3, -1, 1))
sketch8.addConstraint(Sketcher.Constraint("Coincident", 41, 3, -1, 1))
sketch8.addConstraint(Sketcher.Constraint("Coincident", 43, 3, -1, 1))
sketch8.addConstraint(Sketcher.Constraint("Coincident", 44, 3, -1, 1))
sketch8.addConstraint(Sketcher.Constraint("Equal", 3, 17))
sketch8.addConstraint(Sketcher.Constraint("Equal", 1, 19))
sketch8.addConstraint(Sketcher.Constraint("Equal", 17, 21))
sketch8.addConstraint(Sketcher.Constraint("Equal", 19, 23))
sketch8.addConstraint(Sketcher.Constraint("Equal", 21, 25))
sketch8.addConstraint(Sketcher.Constraint("Equal", 25, 39))
sketch8.addConstraint(Sketcher.Constraint("Equal", 23, 41))
sketch8.addConstraint(Sketcher.Constraint("Equal", 39, 43))
sketch8.addConstraint(Sketcher.Constraint("Symmetric", 4, 2, 26, 2, -1, 1))
sketch8.addConstraint(Sketcher.Constraint("Symmetric", 6, 2, 28, 2, -1, 1))
sketch8.addConstraint(Sketcher.Constraint("Symmetric", 8, 2, 30, 2, -1, 1))
sketch8.addConstraint(Sketcher.Constraint("Symmetric", 10, 2, 32, 2, -1, 1))
sketch8.addConstraint(Sketcher.Constraint("Symmetric", 12, 2, 34, 2, -1, 1))
sketch8.addConstraint(Sketcher.Constraint("Symmetric", 14, 2, 36, 2, -1, 1))
sketch8.addConstraint(Sketcher.Constraint("Symmetric", 15, 2, 26, 2, -2))
sketch8.addConstraint(Sketcher.Constraint("Symmetric", 13, 2, 28, 2, -2))
sketch8.addConstraint(Sketcher.Constraint("Symmetric", 11, 2, 30, 2, -2))
sketch8.addConstraint(Sketcher.Constraint("Perpendicular", 6, 8))
sketch8.addConstraint(Sketcher.Constraint("Perpendicular", 8, 12))
sketch8.addConstraint(Sketcher.Constraint("Perpendicular", 12, 14))
sketch8.addConstraint(Sketcher.Constraint("Perpendicular", 0, 18))
sketch8.addConstraint(Sketcher.Constraint("Perpendicular", 2, 20))
sketch8.addConstraint(Sketcher.Constraint("Perpendicular", 18, 22))
sketch8.addConstraint(Sketcher.Constraint("Perpendicular", 20, 24))
sketch8.addConstraint(Sketcher.Constraint("Parallel", 4, 26))
sketch8.addConstraint(Sketcher.Constraint("Perpendicular", 14, 28))
sketch8.addConstraint(Sketcher.Constraint("Perpendicular", 28, 30))
sketch8.addConstraint(Sketcher.Constraint("Perpendicular", 30, 34))
sketch8.addConstraint(Sketcher.Constraint("Perpendicular", 34, 36))
sketch8.addConstraint(Sketcher.Constraint("Parallel", 16, 38))
sketch8.addConstraint(Sketcher.Constraint("Perpendicular", 22, 40))
sketch8.addConstraint(Sketcher.Constraint("Perpendicular", 24, 42))
sketch8.addConstraint(Sketcher.Constraint("Horizontal", 20, 2, 21, 1))
sketch8.addConstraint(Sketcher.Constraint("Horizontal", 19, 1, 22, 2))
sketch8.addConstraint(Sketcher.Constraint("Horizontal", 18, 2, 23, 1))
sketch8.addConstraint(Sketcher.Constraint("Horizontal", 16, 2, 25, 1))
sketch8.addConstraint(Sketcher.Constraint("Horizontal", 12, 2, 29, 2))
sketch8.addConstraint(Sketcher.Constraint("Horizontal", 3, 1, 38, 2))
sketch8.addConstraint(Sketcher.Constraint("Horizontal", 2, 2, 39, 1))
sketch8.addConstraint(Sketcher.Constraint("Horizontal", 0, 2, 41, 1))
sketch8.addConstraint(Sketcher.Constraint("Vertical", 5, 2, 8, 2))
sketch8.addConstraint(Sketcher.Constraint("Vertical", 2, 2, 17, 1))
sketch8.addConstraint(Sketcher.Constraint("Vertical", 0, 2, 19, 1))
sketch8.addConstraint(Sketcher.Constraint("Diameter", 44, Q("12 mm")))
sketch8.addConstraint(Sketcher.Constraint("Radius", 1, Q("18 mm")))
sketch8.addConstraint(Sketcher.Constraint("Radius", 3, Q("8 mm")))
sketch8.addConstraint(Sketcher.Constraint("DistanceY", 10, 2, 10, 1, Q("4 mm")))
sketch8.addConstraint(Sketcher.Constraint("DistanceX", 5, 1, 5, 2, Q("2.9 mm")))
sketch8.addConstraint(Sketcher.Constraint("DistanceX", 9, 2, 9, 1, Q("1.4 mm")))
sketch8.addConstraint(Sketcher.Constraint("DistanceY", 7, 2, 7, 1, Q("0.5 mm")))
sketch8.addConstraint(Sketcher.Constraint("DistanceY", -1, 1, 6, 2, Q("3 mm")))
sketch8.addConstraint(Sketcher.Constraint("DistanceX", -1, 1, 4, 2, Q("9.3 mm")))
sketch8.addConstraint(Sketcher.Constraint("DistanceX", 20, 2, 17, 1, Q("1.566301 mm")))
sketch8.addConstraint(Sketcher.Constraint("DistanceY", 20, 2, 17, 1, Q("1.566301 mm")))
sketch8.addConstraint(Sketcher.Constraint("DistanceX", 22, 2, 20, 2, Q("15.662499 mm")))
sketch8.addConstraint(Sketcher.Constraint("DistanceX", -1, 1, 3, 1, Q("7.48732 mm")))
sketch8.setExpression("Constraints[112]", "Params.sketch8_diameter")
sketch8.setExpression("Constraints[113]", "Params.sketch8_radius")
sketch8.setExpression("Constraints[114]", "Params.sketch8_radius2")
sketch8.setExpression("Constraints[115]", "Params.sketch8_height")
sketch8.setExpression("Constraints[116]", "Params.sketch8_width")
pad8 = body.newObject("PartDesign::Pad", "Pad007")
pad8.Profile = sketch8
pad8.setExpression("Length", "Params.pad8_length")

# Sketch on XY plane
sketch9 = body.newObject("Sketcher::SketchObject", "Sketch008")
sketch9.AttachmentSupport = (doc.getObject("XY_Plane"), [""])
sketch9.MapMode = "FlatFace"
sketch9.addGeometry(Part.LineSegment(Vector(-15.9, 2, 0), Vector(-39, 2, 0)), False)
sketch9.addGeometry(Part.LineSegment(Vector(-39, 2, 0), Vector(-39, -2, 0)), False)
sketch9.addGeometry(Part.LineSegment(Vector(-39, -2, 0), Vector(-15.9, -2, 0)), False)
sketch9.addGeometry(Part.ArcOfCircle(Part.Circle(Vector(0, 0, 0), Vector(0, 0, 1), 16), math.radians(172.82), math.radians(187.18)), False)
sketch9.addGeometry(Part.LineSegment(Vector(39, -2, 0), Vector(39, 2, 0)), False)
sketch9.addGeometry(Part.LineSegment(Vector(39, 2, 0), Vector(15.9, 2, 0)), False)
sketch9.addGeometry(Part.ArcOfCircle(Part.Circle(Vector(0, 0, 0), Vector(0, 0, 1), 16), math.radians(-7.18), math.radians(7.18)), False)
sketch9.addGeometry(Part.LineSegment(Vector(15.9, -2, 0), Vector(39, -2, 0)), False)
sketch9.addGeometry(Part.LineSegment(Vector(2, 33, 0), Vector(-2, 33, 0)), False)
sketch9.addGeometry(Part.LineSegment(Vector(-2, 33, 0), Vector(-2, 15.9, 0)), False)
sketch9.addGeometry(Part.ArcOfCircle(Part.Circle(Vector(0, 0, 0), Vector(0, 0, 1), 16), math.radians(82.82), math.radians(97.18)), False)
sketch9.addGeometry(Part.LineSegment(Vector(2, 15.9, 0), Vector(2, 33, 0)), False)
sketch9.addGeometry(Part.LineSegment(Vector(-2, -33, 0), Vector(2, -33, 0)), False)
sketch9.addGeometry(Part.LineSegment(Vector(2, -33, 0), Vector(2, -15.9, 0)), False)
sketch9.addGeometry(Part.ArcOfCircle(Part.Circle(Vector(0, 0, 0), Vector(0, 0, 1), 16), math.radians(-97.18), math.radians(-82.82)), False)
sketch9.addGeometry(Part.LineSegment(Vector(-2, -15.9, 0), Vector(-2, -33, 0)), False)
sketch9.addConstraint(Sketcher.Constraint("Coincident", 0, 2, 1, 1))
sketch9.addConstraint(Sketcher.Constraint("Coincident", 1, 2, 2, 1))
sketch9.addConstraint(Sketcher.Constraint("Coincident", 2, 2, 3, 2))
sketch9.addConstraint(Sketcher.Constraint("Coincident", 3, 1, 0, 1))
sketch9.addConstraint(Sketcher.Constraint("Coincident", 4, 2, 5, 1))
sketch9.addConstraint(Sketcher.Constraint("Coincident", 5, 2, 6, 2))
sketch9.addConstraint(Sketcher.Constraint("Coincident", 6, 1, 7, 1))
sketch9.addConstraint(Sketcher.Constraint("Coincident", 7, 2, 4, 1))
sketch9.addConstraint(Sketcher.Constraint("Coincident", 8, 2, 9, 1))
sketch9.addConstraint(Sketcher.Constraint("Coincident", 9, 2, 10, 2))
sketch9.addConstraint(Sketcher.Constraint("Coincident", 10, 1, 11, 1))
sketch9.addConstraint(Sketcher.Constraint("Coincident", 11, 2, 8, 1))
sketch9.addConstraint(Sketcher.Constraint("Coincident", 12, 2, 13, 1))
sketch9.addConstraint(Sketcher.Constraint("Coincident", 13, 2, 14, 2))
sketch9.addConstraint(Sketcher.Constraint("Coincident", 14, 1, 15, 1))
sketch9.addConstraint(Sketcher.Constraint("Coincident", 15, 2, 12, 1))
sketch9.addConstraint(Sketcher.Constraint("Horizontal", 0))
sketch9.addConstraint(Sketcher.Constraint("Vertical", 1))
sketch9.addConstraint(Sketcher.Constraint("Horizontal", 2))
sketch9.addConstraint(Sketcher.Constraint("Vertical", 4))
sketch9.addConstraint(Sketcher.Constraint("Horizontal", 5))
sketch9.addConstraint(Sketcher.Constraint("Horizontal", 7))
sketch9.addConstraint(Sketcher.Constraint("Horizontal", 8))
sketch9.addConstraint(Sketcher.Constraint("Vertical", 9))
sketch9.addConstraint(Sketcher.Constraint("Vertical", 11))
sketch9.addConstraint(Sketcher.Constraint("Horizontal", 12))
sketch9.addConstraint(Sketcher.Constraint("Vertical", 13))
sketch9.addConstraint(Sketcher.Constraint("Vertical", 15))
sketch9.addConstraint(Sketcher.Constraint("Coincident", 3, 3, -1, 1))
sketch9.addConstraint(Sketcher.Constraint("Coincident", 6, 3, -1, 1))
sketch9.addConstraint(Sketcher.Constraint("Coincident", 10, 3, -1, 1))
sketch9.addConstraint(Sketcher.Constraint("Coincident", 14, 3, -1, 1))
sketch9.addConstraint(Sketcher.Constraint("Equal", 3, 6))
sketch9.addConstraint(Sketcher.Constraint("Equal", 6, 10))
sketch9.addConstraint(Sketcher.Constraint("Equal", 10, 14))
sketch9.addConstraint(Sketcher.Constraint("Symmetric", 1, 2, 4, 2, -1, 1))
sketch9.addConstraint(Sketcher.Constraint("Symmetric", 8, 2, 12, 2, -1, 1))
sketch9.addConstraint(Sketcher.Constraint("Horizontal", 3, 1, 4, 2))
sketch9.addConstraint(Sketcher.Constraint("Horizontal", 2, 2, 6, 1))
sketch9.addConstraint(Sketcher.Constraint("Horizontal", 9, 2, 10, 1))
sketch9.addConstraint(Sketcher.Constraint("Horizontal", 13, 2, 14, 1))
sketch9.addConstraint(Sketcher.Constraint("Equal", 12, 1))
sketch9.addConstraint(Sketcher.Constraint("Radius", 3, Q("16 mm")))
sketch9.addConstraint(Sketcher.Constraint("DistanceX", 8, 2, 8, 1, Q("4 mm")))
sketch9.addConstraint(Sketcher.Constraint("DistanceX", 0, 2, -1, 1, Q("39 mm")))
sketch9.addConstraint(Sketcher.Constraint("DistanceY", -1, 1, 8, 2, Q("33 mm")))
sketch9.setExpression("Constraints[42]", "Params.sketch9_radius")
sketch9.setExpression("Constraints[43]", "Params.sketch9_width")
pad9 = body.newObject("PartDesign::Pad", "Pad008")
pad9.Profile = sketch9
pad9.Type = "TwoLengths"
pad9.setExpression("Length", "Params.pad9_length")
pad9.setExpression("Length2", "Params.pad9_length2")

doc.recompute()
